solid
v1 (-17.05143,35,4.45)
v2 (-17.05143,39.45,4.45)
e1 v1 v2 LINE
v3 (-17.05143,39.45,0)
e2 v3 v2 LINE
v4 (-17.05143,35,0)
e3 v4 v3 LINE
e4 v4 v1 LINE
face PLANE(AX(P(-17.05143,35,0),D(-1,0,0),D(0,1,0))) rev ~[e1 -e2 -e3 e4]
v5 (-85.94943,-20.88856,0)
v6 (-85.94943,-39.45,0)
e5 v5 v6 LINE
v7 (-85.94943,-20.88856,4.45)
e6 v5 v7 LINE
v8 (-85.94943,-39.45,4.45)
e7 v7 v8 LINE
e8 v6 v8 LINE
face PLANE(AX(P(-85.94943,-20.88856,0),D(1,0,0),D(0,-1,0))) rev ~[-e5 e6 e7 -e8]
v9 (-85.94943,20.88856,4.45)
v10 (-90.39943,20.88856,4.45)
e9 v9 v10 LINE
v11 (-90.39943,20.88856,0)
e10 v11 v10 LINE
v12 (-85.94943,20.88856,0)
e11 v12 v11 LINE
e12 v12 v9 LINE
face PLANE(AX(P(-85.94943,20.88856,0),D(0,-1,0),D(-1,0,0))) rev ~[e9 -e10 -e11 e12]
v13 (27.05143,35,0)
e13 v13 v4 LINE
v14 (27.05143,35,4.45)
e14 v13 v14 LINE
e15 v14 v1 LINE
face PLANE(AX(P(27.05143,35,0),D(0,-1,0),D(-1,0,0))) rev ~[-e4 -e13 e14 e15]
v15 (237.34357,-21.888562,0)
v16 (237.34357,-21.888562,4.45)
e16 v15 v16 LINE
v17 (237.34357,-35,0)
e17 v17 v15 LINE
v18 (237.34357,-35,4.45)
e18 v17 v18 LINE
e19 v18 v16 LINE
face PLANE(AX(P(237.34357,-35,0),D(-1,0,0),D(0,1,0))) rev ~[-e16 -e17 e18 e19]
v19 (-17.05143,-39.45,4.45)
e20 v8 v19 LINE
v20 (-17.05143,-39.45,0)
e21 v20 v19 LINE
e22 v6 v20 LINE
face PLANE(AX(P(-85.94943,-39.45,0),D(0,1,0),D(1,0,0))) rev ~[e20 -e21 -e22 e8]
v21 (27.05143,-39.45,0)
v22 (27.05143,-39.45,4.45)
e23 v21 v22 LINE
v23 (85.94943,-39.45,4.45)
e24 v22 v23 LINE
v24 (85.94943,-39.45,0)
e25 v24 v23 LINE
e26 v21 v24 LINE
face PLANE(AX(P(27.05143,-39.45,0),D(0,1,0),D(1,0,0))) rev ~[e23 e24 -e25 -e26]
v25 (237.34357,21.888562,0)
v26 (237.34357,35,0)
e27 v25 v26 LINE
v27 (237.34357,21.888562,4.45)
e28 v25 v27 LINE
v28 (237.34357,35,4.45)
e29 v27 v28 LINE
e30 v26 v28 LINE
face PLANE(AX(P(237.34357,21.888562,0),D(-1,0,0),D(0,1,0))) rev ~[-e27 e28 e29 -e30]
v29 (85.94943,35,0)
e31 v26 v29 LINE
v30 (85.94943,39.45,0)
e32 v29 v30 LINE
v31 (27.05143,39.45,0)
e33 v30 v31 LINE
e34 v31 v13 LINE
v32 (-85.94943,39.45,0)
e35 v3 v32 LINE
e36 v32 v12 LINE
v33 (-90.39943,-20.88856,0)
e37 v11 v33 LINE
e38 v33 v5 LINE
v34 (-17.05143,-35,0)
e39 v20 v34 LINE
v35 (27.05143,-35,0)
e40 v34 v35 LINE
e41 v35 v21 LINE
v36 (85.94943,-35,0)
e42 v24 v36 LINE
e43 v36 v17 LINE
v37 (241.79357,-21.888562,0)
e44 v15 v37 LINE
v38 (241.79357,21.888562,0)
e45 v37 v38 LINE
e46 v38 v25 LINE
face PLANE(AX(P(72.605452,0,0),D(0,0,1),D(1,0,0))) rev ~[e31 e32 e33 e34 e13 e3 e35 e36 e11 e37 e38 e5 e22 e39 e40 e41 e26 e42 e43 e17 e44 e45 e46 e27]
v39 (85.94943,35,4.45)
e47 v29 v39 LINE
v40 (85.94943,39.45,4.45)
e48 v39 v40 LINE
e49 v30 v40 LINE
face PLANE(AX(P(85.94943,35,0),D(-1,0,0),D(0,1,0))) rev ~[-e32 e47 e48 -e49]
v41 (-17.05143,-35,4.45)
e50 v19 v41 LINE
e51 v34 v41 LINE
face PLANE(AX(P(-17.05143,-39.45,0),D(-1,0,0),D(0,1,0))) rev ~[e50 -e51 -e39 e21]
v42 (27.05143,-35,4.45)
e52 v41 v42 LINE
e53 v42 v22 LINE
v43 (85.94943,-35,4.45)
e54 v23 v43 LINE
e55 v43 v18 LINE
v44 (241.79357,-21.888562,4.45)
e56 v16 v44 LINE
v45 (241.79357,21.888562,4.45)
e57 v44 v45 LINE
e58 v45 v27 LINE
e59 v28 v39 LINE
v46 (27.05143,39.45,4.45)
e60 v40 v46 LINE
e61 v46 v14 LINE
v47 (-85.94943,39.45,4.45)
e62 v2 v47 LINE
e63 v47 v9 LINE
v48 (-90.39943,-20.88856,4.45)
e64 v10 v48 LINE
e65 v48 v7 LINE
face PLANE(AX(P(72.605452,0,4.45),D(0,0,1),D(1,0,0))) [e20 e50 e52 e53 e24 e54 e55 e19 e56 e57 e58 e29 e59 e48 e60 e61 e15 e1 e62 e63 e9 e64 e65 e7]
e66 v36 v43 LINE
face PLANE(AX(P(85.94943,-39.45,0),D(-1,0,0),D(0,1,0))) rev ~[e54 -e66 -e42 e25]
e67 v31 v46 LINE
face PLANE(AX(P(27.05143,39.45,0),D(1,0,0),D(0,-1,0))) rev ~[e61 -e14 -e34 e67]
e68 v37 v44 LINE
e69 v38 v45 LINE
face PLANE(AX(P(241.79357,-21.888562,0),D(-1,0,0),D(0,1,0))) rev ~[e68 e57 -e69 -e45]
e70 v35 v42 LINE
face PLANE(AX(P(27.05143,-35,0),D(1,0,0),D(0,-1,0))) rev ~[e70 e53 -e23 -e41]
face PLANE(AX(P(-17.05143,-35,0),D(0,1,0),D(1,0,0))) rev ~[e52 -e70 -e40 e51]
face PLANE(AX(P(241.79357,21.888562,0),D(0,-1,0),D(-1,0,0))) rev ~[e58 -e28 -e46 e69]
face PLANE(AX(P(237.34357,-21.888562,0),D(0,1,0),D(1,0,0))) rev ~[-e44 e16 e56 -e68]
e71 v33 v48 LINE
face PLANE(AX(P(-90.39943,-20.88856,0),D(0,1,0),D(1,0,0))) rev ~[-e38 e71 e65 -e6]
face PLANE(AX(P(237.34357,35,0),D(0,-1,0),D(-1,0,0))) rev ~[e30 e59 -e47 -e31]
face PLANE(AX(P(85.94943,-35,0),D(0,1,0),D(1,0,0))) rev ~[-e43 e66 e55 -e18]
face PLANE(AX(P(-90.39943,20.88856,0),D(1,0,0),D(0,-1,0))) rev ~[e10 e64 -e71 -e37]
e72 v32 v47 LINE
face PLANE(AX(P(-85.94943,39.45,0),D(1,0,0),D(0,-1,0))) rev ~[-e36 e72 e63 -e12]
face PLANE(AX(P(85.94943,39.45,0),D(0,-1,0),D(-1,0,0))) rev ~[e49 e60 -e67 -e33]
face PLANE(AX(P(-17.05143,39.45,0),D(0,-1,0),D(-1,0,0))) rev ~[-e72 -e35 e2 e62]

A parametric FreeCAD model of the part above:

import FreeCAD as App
import Part
import Sketcher
from FreeCAD import Vector


def add_polygon(sketch, points):
    """Adds a closed chain of lines whose ends are joined by coincident constraints."""
    first, n = sketch.GeometryCount, len(points)
    for a, b in zip(points, points[1:] + points[:1]):
        sketch.addGeometry(Part.LineSegment(App.Vector(*a, 0), App.Vector(*b, 0)), False)
    for i in range(n):
        sketch.addConstraint(Sketcher.Constraint("Coincident", first + i, 2, first + (i + 1) % n, 1))

doc = App.newDocument("Part")
params = doc.addObject("Spreadsheet::Sheet", "Params")
for row, (alias, value) in enumerate([
    ("sketch1_width", "4.45 mm"),
    ("pad1_length", "4.45 mm"),
], start=1):
    params.set(f"A{row}", alias)
    params.set(f"B{row}", "=" + value)
    params.setAlias(f"B{row}", alias)

body = doc.addObject("PartDesign::Body", "Body")

# Sketch on XY plane
sketch1 = doc.addObject("Sketcher::SketchObject", "Sketch")
body.addObject(sketch1)
sketch1.AttachmentSupport = (doc.XY_Plane, [""])
sketch1.MapMode = "FlatFace"
add_polygon(sketch1, [(-17.1, -35), (27.1, -35), (27.1, -39.5), (85.9, -39.5), (85.9, -35), (237.3, -35), (237.3, -21.9), (241.8, -21.9), (241.8, 21.9), (237.3, 21.9), (237.3, 35), (85.9, 35), (85.9, 39.5), (27.1, 39.5), (27.1, 35), (-17.1, 35), (-17.1, 39.5), (-85.9, 39.5), (-85.9, 20.9), (-90.4, 20.9), (-90.4, -20.9), (-85.9, -20.9), (-85.9, -39.5), (-17.1, -39.5)])  # lines 0-23
sketch1.addConstraint([
    Sketcher.Constraint("Horizontal", 0),
    Sketcher.Constraint("Vertical", 1),
    Sketcher.Constraint("Horizontal", 2),
    Sketcher.Constraint("Vertical", 3),
    Sketcher.Constraint("Horizontal", 4),
    Sketcher.Constraint("Vertical", 5),
    Sketcher.Constraint("Horizontal", 6),
    Sketcher.Constraint("Vertical", 7),
    Sketcher.Constraint("Horizontal", 8),
    Sketcher.Constraint("Vertical", 9),
    Sketcher.Constraint("Horizontal", 10),
    Sketcher.Constraint("Vertical", 11),
    Sketcher.Constraint("Horizontal", 12),
    Sketcher.Constraint("Vertical", 13),
    Sketcher.Constraint("Horizontal", 14),
    Sketcher.Constraint("Vertical", 15),
    Sketcher.Constraint("Horizontal", 16),
    Sketcher.Constraint("Vertical", 17),
    Sketcher.Constraint("Horizontal", 18),
    Sketcher.Constraint("Vertical", 19),
    Sketcher.Constraint("Horizontal", 20),
    Sketcher.Constraint("Vertical", 21),
    Sketcher.Constraint("Horizontal", 22),
    Sketcher.Constraint("Vertical", 23),
    Sketcher.Constraint("Symmetric", 2, 2, 16, 2, -1, 1),
    Sketcher.Constraint("Symmetric", 11, 2, 21, 2, -1, 1),
    Sketcher.Constraint("Symmetric", 11, 2, 16, 2, -2),
    Sketcher.Constraint("Symmetric", 5, 2, 8, 2, -1),
    Sketcher.Constraint("Symmetric", 0, 2, 13, 2, -1),
    Sketcher.Constraint("Horizontal", 0, 2, 3, 2),
    Sketcher.Constraint("Horizontal", 10, 2, 13, 2),
    Sketcher.Constraint("Vertical", 15, 2, 22, 2),
    Sketcher.Constraint("Equal", 8, 18),
    Sketcher.Constraint("Equal", 20, 1),
    Sketcher.Constraint("Equal", 17, 21),
    Sketcher.Constraint("DistanceY", 0, 2, -1, 1, 35.0),
    Sketcher.Constraint("DistanceX", 6, 1, 6, 2, 4.45),
    Sketcher.Constraint("DistanceX", 2, 1, 2, 2, 58.898),
    Sketcher.Constraint("DistanceX", 16, 2, 16, 1, 68.898),
    Sketcher.Constraint("DistanceX", 0, 1, 0, 2, 44.10286),
    Sketcher.Constraint("DistanceX", 4, 1, 4, 2, 151.39414),
    Sketcher.Constraint("DistanceY", 17, 2, 17, 1, 18.56144),
    Sketcher.Constraint("DistanceY", 5, 1, 5, 2, 13.111438),
])
sketch1.setExpression("Constraints[60]", "Params.sketch1_width")
pad1 = doc.addObject("PartDesign::Pad", "Pad")
body.addObject(pad1)
pad1.Profile = sketch1
pad1.setExpression("Length", "Params.pad1_length")

doc.recompute()
